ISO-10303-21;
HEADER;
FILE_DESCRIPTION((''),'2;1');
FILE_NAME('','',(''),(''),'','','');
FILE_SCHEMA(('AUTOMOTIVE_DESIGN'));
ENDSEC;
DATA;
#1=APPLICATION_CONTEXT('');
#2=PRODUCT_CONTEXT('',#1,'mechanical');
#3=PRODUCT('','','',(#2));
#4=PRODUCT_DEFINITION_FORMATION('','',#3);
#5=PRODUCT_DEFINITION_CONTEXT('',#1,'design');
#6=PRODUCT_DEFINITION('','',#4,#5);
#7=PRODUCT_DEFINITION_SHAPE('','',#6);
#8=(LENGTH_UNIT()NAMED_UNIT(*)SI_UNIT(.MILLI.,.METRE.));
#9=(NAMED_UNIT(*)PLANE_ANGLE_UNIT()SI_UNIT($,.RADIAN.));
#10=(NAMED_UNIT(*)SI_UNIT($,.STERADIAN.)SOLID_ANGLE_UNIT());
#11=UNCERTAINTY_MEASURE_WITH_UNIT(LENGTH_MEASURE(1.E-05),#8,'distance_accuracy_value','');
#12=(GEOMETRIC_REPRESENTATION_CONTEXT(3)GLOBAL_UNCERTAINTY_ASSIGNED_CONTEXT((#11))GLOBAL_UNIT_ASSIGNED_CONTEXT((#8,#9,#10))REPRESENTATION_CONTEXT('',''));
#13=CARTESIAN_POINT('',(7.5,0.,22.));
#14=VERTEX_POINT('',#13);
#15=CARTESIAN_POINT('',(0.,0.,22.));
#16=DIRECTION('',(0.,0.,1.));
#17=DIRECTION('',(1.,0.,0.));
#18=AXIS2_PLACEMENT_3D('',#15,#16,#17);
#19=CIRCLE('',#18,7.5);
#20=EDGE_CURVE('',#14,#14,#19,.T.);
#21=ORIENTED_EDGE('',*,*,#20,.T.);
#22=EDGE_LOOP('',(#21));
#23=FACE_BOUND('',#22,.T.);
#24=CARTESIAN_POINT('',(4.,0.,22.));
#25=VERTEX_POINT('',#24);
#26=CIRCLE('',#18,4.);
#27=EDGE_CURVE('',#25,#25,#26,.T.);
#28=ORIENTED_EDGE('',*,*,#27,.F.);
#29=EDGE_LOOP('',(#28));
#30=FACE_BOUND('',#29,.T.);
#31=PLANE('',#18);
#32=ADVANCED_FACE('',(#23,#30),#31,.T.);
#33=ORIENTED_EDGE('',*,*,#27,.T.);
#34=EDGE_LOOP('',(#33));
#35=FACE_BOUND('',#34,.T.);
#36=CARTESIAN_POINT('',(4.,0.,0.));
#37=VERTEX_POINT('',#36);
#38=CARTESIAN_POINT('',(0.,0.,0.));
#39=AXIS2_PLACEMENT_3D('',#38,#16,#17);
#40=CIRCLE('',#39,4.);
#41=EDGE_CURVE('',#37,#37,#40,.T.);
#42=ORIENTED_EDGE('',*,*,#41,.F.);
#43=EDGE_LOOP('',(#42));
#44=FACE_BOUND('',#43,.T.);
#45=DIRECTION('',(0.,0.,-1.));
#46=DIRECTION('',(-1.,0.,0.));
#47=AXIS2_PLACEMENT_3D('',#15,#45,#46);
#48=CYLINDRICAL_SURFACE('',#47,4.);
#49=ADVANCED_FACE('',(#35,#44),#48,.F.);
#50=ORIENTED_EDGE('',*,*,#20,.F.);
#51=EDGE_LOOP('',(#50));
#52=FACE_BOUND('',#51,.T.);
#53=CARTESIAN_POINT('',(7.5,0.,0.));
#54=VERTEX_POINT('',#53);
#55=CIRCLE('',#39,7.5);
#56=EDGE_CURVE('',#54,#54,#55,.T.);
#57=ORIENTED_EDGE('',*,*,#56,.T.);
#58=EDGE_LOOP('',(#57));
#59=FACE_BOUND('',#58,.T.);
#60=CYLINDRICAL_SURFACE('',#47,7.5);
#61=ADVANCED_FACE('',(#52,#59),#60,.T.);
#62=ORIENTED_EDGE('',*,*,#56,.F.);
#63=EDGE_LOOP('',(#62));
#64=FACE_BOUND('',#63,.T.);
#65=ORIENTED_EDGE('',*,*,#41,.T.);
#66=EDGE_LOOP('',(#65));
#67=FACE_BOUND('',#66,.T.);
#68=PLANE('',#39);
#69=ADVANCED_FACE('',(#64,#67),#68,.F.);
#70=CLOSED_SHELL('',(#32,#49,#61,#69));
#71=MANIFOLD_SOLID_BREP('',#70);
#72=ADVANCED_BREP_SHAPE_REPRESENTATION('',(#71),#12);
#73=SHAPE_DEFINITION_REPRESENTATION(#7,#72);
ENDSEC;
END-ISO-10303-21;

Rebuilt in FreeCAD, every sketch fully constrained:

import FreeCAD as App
import Part
import Sketcher
from FreeCAD import Vector

doc = App.newDocument("Part")
body = doc.addObject("PartDesign::Body", "Body")

sketch1 = body.newObject("Sketcher::SketchObject", "Sketch")
sketch1.AttachmentSupport = (doc.getObject("XY_Plane"), [""])
sketch1.MapMode = "FlatFace"
sketch1.addGeometry([
    Part.Circle(Vector(0, 0, 0), Vector(0, 0, 1), 7.5),
    Part.Circle(Vector(0, 0, 0), Vector(0, 0, 1), 4),
], False)
sketch1.addConstraint([
    Sketcher.Constraint("Coincident", 0, 3, -1, 1),
    Sketcher.Constraint("Coincident", 1, 3, -1, 1),
    Sketcher.Constraint("Diameter", 0, 15.0),
    Sketcher.Constraint("Diameter", 1, 8.0),
])
pad1 = body.newObject("PartDesign::Pad", "Pad")
pad1.Profile = sketch1
pad1.Length = 22

doc.recompute()
